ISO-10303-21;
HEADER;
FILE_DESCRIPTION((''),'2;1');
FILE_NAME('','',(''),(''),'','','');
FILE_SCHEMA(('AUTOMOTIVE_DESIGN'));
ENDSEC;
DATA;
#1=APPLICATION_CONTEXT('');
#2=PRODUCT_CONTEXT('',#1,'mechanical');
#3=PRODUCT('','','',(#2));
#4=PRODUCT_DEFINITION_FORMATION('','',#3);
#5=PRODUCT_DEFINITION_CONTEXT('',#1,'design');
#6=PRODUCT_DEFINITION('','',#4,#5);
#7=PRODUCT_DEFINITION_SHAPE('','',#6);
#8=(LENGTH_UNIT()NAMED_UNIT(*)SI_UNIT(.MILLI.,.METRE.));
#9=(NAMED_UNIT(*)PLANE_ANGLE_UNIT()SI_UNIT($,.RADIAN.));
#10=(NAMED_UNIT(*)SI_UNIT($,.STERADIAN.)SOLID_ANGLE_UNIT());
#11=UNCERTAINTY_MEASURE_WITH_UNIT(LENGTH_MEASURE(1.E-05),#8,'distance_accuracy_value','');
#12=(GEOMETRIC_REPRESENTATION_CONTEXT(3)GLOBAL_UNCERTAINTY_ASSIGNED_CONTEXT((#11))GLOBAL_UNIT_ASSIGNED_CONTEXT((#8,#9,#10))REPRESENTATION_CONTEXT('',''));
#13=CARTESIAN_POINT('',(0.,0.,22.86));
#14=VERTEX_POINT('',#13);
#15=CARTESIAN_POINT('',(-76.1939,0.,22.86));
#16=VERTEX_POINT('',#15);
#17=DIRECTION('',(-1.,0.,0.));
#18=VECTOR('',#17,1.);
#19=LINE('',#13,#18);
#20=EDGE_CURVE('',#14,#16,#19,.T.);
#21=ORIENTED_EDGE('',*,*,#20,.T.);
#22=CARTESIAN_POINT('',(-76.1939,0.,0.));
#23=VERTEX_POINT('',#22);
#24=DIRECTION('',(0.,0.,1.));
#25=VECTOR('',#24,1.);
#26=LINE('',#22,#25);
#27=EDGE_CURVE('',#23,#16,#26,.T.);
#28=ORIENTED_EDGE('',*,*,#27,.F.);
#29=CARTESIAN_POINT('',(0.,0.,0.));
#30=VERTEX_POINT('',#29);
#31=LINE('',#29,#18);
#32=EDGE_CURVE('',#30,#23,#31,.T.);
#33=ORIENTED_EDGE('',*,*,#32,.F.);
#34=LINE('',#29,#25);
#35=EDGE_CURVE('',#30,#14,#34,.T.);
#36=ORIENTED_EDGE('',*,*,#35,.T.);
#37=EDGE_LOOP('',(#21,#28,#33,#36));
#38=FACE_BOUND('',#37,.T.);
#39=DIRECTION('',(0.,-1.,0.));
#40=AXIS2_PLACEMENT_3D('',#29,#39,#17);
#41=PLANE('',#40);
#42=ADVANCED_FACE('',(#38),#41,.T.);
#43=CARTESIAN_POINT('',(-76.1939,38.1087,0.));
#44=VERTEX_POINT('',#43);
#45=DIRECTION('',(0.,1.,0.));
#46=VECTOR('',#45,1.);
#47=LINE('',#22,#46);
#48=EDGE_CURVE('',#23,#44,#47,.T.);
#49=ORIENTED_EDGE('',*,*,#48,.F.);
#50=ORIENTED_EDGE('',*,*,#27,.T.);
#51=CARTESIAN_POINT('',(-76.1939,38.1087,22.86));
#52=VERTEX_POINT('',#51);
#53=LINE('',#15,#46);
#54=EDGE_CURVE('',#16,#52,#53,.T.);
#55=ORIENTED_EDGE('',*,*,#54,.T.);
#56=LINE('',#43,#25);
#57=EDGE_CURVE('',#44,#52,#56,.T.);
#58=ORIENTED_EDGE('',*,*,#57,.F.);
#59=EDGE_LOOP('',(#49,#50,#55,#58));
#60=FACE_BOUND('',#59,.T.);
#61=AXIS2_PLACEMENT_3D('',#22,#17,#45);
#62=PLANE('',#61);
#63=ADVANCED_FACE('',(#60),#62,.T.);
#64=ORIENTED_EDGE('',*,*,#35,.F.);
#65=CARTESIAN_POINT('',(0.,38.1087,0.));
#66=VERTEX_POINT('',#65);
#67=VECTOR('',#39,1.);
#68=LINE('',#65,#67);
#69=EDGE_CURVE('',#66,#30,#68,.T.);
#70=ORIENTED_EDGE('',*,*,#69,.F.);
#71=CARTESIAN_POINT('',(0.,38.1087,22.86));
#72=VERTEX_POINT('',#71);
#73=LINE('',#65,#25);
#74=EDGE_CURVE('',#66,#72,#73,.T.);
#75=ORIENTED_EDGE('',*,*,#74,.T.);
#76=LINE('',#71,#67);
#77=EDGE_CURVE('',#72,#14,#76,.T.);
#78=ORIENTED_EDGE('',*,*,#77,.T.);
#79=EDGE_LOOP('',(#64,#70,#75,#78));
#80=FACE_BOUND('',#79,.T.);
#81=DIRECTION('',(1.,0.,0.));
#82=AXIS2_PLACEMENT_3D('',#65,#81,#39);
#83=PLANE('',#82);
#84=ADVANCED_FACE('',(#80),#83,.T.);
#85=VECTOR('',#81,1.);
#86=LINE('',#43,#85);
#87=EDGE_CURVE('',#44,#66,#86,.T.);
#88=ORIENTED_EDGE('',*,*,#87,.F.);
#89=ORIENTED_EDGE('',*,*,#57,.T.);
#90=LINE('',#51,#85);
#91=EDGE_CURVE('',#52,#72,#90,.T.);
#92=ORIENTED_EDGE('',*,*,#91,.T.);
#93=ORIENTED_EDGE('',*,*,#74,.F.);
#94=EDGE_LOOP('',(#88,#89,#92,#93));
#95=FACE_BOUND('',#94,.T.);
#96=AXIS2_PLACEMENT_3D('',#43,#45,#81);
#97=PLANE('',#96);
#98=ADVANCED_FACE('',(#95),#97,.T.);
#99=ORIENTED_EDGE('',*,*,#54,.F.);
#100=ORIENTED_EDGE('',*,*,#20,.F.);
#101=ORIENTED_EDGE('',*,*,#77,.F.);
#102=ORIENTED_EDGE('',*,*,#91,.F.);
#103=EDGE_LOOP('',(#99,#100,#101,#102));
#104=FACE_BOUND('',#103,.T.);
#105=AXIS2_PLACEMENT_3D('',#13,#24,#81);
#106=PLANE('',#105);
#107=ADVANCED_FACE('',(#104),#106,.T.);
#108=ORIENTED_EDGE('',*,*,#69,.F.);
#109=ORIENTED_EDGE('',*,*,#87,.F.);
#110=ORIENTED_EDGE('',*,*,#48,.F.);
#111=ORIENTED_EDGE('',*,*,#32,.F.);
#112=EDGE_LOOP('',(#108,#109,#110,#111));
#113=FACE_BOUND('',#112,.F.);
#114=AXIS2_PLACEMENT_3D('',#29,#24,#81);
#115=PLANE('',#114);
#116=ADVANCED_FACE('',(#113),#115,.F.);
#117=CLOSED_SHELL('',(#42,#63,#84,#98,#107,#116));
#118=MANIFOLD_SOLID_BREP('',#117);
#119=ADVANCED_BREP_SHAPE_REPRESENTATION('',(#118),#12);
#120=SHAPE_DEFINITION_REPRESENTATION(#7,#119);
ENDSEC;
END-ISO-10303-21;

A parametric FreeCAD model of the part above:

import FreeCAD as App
import Part
import Sketcher
Q = App.Units.Quantity


def add_polygon(sketch, points):
    """Adds a closed chain of lines whose ends are joined by coincident constraints."""
    first, n = sketch.GeometryCount, len(points)
    for a, b in zip(points, points[1:] + points[:1]):
        sketch.addGeometry(Part.LineSegment(App.Vector(*a, 0), App.Vector(*b, 0)), False)
    for i in range(n):
        sketch.addConstraint(Sketcher.Constraint("Coincident", first + i, 2, first + (i + 1) % n, 1))

doc = App.newDocument("Part")
body = doc.addObject("PartDesign::Body", "Body")

# Sketch on XY plane
sketch1 = body.newObject("Sketcher::SketchObject", "Sketch")
sketch1.AttachmentSupport = (doc.getObject("XY_Plane"), [""])
sketch1.MapMode = "FlatFace"
add_polygon(sketch1, [(-76, 0), (0, 0), (0, 38), (-76, 38)])  # lines 0-3
sketch1.addConstraint([
    Sketcher.Constraint("Horizontal", 0),
    Sketcher.Constraint("Vertical", 1),
    Sketcher.Constraint("Horizontal", 2),
    Sketcher.Constraint("Vertical", 3),
    Sketcher.Constraint("Coincident", 0, 2, -1, 1),
    Sketcher.Constraint("DistanceX", 0, 1, 0, 2, 76.194),
    Sketcher.Constraint("DistanceY", 1, 1, 1, 2, 38.1087),
])
pad1 = body.newObject("PartDesign::Pad", "Pad")
pad1.Profile = sketch1
pad1.Length = Q("0.9 in")

doc.recompute()
